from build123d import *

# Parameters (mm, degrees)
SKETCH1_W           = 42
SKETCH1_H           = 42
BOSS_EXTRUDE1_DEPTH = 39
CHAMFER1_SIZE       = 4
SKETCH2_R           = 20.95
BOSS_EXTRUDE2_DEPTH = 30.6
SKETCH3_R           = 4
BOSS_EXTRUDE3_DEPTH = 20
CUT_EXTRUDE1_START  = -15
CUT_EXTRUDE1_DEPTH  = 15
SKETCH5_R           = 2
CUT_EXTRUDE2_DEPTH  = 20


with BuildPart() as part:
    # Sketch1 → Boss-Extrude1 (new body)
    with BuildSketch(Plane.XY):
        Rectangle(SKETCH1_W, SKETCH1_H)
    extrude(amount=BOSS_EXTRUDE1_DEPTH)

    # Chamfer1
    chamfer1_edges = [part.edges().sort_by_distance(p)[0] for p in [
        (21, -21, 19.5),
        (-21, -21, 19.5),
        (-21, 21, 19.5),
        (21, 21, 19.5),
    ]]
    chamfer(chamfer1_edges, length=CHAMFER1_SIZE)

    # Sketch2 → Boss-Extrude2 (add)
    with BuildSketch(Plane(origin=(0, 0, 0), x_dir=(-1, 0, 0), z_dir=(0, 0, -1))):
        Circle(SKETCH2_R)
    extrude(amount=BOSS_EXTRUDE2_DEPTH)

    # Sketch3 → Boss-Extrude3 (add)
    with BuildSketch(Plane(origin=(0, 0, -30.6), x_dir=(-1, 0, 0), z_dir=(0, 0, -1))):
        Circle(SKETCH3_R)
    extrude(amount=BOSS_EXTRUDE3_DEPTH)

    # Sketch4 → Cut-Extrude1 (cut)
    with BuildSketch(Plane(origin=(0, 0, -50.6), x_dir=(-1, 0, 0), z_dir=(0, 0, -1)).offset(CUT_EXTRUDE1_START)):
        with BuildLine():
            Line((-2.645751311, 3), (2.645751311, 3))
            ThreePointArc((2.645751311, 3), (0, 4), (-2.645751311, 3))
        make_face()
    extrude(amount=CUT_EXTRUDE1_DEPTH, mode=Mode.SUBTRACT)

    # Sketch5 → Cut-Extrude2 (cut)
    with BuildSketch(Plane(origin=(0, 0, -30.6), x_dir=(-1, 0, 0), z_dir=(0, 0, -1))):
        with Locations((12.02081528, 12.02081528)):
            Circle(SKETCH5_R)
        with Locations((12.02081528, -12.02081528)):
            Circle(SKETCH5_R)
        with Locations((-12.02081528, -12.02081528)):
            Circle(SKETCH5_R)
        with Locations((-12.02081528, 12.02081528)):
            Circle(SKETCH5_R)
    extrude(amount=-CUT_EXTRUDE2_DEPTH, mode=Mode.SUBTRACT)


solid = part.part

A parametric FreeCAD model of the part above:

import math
import FreeCAD as App
import Part
import Sketcher
Q = App.Units.Quantity


def edges_at(feature, points):
    """Names of the edges that pass closest to the given points."""
    edges = feature.Shape.Edges
    near = lambda p: min(range(len(edges)), key=lambda i: edges[i].distToShape(Part.Vertex(*p))[0])
    return sorted({f"Edge{near(p) + 1}" for p in points})


def add_polygon(sketch, points):
    """Adds a closed chain of lines whose ends are joined by coincident constraints."""
    first, n = sketch.GeometryCount, len(points)
    for a, b in zip(points, points[1:] + points[:1]):
        sketch.addGeometry(Part.LineSegment(App.Vector(*a, 0), App.Vector(*b, 0)), False)
    for i in range(n):
        sketch.addConstraint(Sketcher.Constraint("Coincident", first + i, 2, first + (i + 1) % n, 1))

doc = App.newDocument("Part")
params = doc.addObject("Spreadsheet::Sheet", "Params")
for row, (alias, value) in enumerate([
    ("sketch1_width", "42 mm"),
    ("pad1_length", "39 mm"),
    ("chamfer_size", "4 mm"),
    ("sketch2_diameter", "41.9 mm"),
    ("pad2_length", "30.6 mm"),
    ("sketch3_diameter", "8 mm"),
    ("pad3_length", "20 mm"),
    ("sketch4_radius", "4 mm"),
    ("pocket1_length", "15 mm"),
    ("sketch5_diameter", "4 mm"),
    ("pocket2_length", "20 mm"),
], start=1):
    params.set(f"A{row}", alias)
    params.set(f"B{row}", "=" + value)
    params.setAlias(f"B{row}", alias)

body = doc.addObject("PartDesign::Body", "Body")

sketch1 = body.newObject("Sketcher::SketchObject", "Sketch")
sketch1.AttachmentSupport = (doc.getObject("XY_Plane"), [""])
sketch1.MapMode = "FlatFace"
add_polygon(sketch1, [(-21, 21), (-21, -21), (21, -21), (21, 21)])
sketch1.addConstraint([
    Sketcher.Constraint("Vertical", 0),
    Sketcher.Constraint("Horizontal", 1),
    Sketcher.Constraint("Vertical", 2),
    Sketcher.Constraint("Horizontal", 3),
    Sketcher.Constraint("Symmetric", 0, 2, 2, 2, -1, 1),
    Sketcher.Constraint("Equal", 3, 0),
    Sketcher.Constraint("DistanceX", 1, 1, 1, 2, Q("42 mm")),
])
sketch1.setExpression("Constraints[10]", "Params.sketch1_width")
pad1 = body.newObject("PartDesign::Pad", "Pad")
pad1.Profile = sketch1
pad1.setExpression("Length", "Params.pad1_length")
doc.recompute()

chamfer = body.newObject("PartDesign::Chamfer", "Chamfer")
chamfer.Base = (pad1, edges_at(pad1, [
    (21, -21, 19.5),
    (-21, -21, 19.5),
    (-21, 21, 19.5),
    (21, 21, 19.5),
]))
chamfer.setExpression("Size", "Params.chamfer_size")

sketch2 = body.newObject("Sketcher::SketchObject", "Sketch001")
sketch2.AttachmentSupport = (doc.getObject("XY_Plane"), [""])
sketch2.MapMode = "FlatFace"
sketch2.addGeometry(Part.Circle(App.Vector(0, 0, 0), App.Vector(0, 0, 1), 21), False)
sketch2.addConstraint([
    Sketcher.Constraint("Coincident", 0, 3, -1, 1),
    Sketcher.Constraint("Diameter", 0, Q("41.9 mm")),
])
sketch2.setExpression("Constraints[1]", "Params.sketch2_diameter")
pad2 = body.newObject("PartDesign::Pad", "Pad001")
pad2.Profile = sketch2
pad2.setExpression("Length", "Params.pad2_length")
pad2.Reversed = True

sketch3 = body.newObject("Sketcher::SketchObject", "Sketch002")
sketch3.AttachmentSupport = (doc.getObject("XY_Plane"), [""])
sketch3.MapMode = "FlatFace"
sketch3.AttachmentOffset = App.Placement(App.Vector(0, 0, -30.6), App.Rotation())
sketch3.addGeometry(Part.Circle(App.Vector(0, 0, 0), App.Vector(0, 0, 1), 4), False)
sketch3.addConstraint([
    Sketcher.Constraint("Coincident", 0, 3, -1, 1),
    Sketcher.Constraint("Diameter", 0, Q("8 mm")),
])
sketch3.setExpression("Constraints[1]", "Params.sketch3_diameter")
pad3 = body.newObject("PartDesign::Pad", "Pad002")
pad3.Profile = sketch3
pad3.setExpression("Length", "Params.pad3_length")
pad3.Reversed = True

sketch4 = body.newObject("Sketcher::SketchObject", "Sketch003")
sketch4.AttachmentSupport = (doc.getObject("XY_Plane"), [""])
sketch4.MapMode = "FlatFace"
sketch4.AttachmentOffset = App.Placement(App.Vector(0, 0, -35.6), App.Rotation())
sketch4.addGeometry([
    Part.LineSegment(App.Vector(2.6, 3, 0), App.Vector(-2.6, 3, 0)),
    Part.ArcOfCircle(Part.Circle(App.Vector(0, 0, 0), App.Vector(0, 0, 1), 4), math.radians(49), math.radians(131)),
], False)
sketch4.addConstraint([
    Sketcher.Constraint("Coincident", 0, 1, 1, 1),
    Sketcher.Constraint("Coincident", 1, 2, 0, 2),
    Sketcher.Constraint("Horizontal", 0),
    Sketcher.Constraint("Coincident", 1, 3, -1, 1),
    Sketcher.Constraint("Radius", 1, Q("4 mm")),
    Sketcher.Constraint("DistanceY", -1, 1, 0, 1, Q("3 mm")),
])
sketch4.setExpression("Constraints[4]", "Params.sketch4_radius")
pocket1 = body.newObject("PartDesign::Pocket", "Pocket")
pocket1.Profile = sketch4
pocket1.setExpression("Length", "Params.pocket1_length")

sketch5 = body.newObject("Sketcher::SketchObject", "Sketch004")
sketch5.AttachmentSupport = (doc.getObject("XY_Plane"), [""])
sketch5.MapMode = "FlatFace"
sketch5.AttachmentOffset = App.Placement(App.Vector(0, 0, -30.6), App.Rotation())
sketch5.addGeometry([
    Part.Circle(App.Vector(-12, 12, 0), App.Vector(0, 0, 1), 2),
    Part.Circle(App.Vector(-12, -12, 0), App.Vector(0, 0, 1), 2),
    Part.Circle(App.Vector(12, -12, 0), App.Vector(0, 0, 1), 2),
    Part.Circle(App.Vector(12, 12, 0), App.Vector(0, 0, 1), 2),
], False)
sketch5.addConstraint([
    Sketcher.Constraint("Equal", 0, 1),
    Sketcher.Constraint("Equal", 1, 2),
    Sketcher.Constraint("Equal", 2, 3),
    Sketcher.Constraint("Symmetric", 0, 3, 2, 3, -1, 1),
    Sketcher.Constraint("Symmetric", 1, 3, 3, 3, -1, 1),
    Sketcher.Constraint("Symmetric", 1, 3, 2, 3, -2),
    Sketcher.Constraint("Diameter", 0, Q("4 mm")),
    Sketcher.Constraint("DistanceY", 1, 3, 0, 3, Q("24.041631 mm")),
    Sketcher.Constraint("DistanceX", 1, 3, 2, 3, Q("24.041631 mm")),
])
sketch5.setExpression("Constraints[6]", "Params.sketch5_diameter")
pocket2 = body.newObject("PartDesign::Pocket", "Pocket001")
pocket2.Profile = sketch5
pocket2.setExpression("Length", "Params.pocket2_length")
pocket2.Reversed = True

doc.recompute()
